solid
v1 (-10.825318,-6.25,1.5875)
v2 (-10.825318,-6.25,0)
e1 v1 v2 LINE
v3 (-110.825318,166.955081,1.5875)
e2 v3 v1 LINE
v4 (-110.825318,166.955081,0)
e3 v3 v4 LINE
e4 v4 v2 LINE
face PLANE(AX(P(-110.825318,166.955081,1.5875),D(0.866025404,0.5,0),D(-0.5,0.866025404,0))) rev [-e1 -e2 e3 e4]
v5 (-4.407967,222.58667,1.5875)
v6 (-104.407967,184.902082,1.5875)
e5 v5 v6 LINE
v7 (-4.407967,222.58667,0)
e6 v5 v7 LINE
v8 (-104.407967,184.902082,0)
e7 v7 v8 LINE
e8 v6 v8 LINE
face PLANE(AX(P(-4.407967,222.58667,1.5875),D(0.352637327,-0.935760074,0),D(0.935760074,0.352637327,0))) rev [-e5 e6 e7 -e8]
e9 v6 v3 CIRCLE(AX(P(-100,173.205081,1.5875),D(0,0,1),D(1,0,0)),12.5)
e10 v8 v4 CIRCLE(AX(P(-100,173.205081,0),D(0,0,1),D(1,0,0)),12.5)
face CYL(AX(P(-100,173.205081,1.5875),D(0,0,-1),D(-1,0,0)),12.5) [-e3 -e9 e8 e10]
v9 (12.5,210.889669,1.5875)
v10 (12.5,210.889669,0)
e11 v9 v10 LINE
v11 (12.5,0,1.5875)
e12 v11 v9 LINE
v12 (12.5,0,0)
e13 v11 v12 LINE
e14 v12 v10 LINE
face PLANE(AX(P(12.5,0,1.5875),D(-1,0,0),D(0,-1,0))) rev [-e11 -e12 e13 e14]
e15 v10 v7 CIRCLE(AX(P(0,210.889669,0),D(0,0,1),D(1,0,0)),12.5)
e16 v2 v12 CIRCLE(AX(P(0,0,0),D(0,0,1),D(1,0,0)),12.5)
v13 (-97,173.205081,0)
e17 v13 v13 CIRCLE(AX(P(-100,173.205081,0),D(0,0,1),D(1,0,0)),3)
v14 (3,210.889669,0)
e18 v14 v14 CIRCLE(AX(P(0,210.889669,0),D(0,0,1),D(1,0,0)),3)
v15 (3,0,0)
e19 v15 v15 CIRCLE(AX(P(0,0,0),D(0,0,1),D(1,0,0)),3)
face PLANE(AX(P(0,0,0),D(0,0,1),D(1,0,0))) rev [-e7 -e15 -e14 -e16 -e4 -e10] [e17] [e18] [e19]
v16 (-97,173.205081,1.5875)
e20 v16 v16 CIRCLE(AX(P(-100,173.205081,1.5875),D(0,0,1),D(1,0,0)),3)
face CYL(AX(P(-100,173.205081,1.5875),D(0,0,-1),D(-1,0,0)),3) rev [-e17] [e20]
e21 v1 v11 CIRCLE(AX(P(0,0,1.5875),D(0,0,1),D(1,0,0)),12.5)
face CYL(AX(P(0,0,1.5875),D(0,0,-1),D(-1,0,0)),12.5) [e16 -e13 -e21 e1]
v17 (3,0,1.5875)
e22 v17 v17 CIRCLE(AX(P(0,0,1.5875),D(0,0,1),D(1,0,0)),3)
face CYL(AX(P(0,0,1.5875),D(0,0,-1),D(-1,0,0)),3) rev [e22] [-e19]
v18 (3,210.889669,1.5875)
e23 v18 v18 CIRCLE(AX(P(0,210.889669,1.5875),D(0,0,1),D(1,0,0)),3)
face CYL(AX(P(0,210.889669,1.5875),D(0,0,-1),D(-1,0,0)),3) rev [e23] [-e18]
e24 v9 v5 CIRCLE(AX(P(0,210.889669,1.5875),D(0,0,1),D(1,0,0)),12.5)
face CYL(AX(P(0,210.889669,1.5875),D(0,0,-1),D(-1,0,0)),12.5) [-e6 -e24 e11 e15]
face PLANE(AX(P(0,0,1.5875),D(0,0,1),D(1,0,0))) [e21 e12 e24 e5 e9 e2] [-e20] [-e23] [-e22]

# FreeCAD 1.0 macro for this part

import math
import FreeCAD as App
import Part
import Sketcher

V = App.Vector
Q = App.Units.Quantity

doc = App.newDocument("Part")
body = doc.addObject("PartDesign::Body", "Body")

# Sketch on XY plane
sketch1 = doc.addObject("Sketcher::SketchObject", "Sketch")
body.addObject(sketch1)
sketch1.AttachmentSupport = (doc.XY_Plane, [""])
sketch1.MapMode = "FlatFace"
sketch1.addGeometry([
    Part.LineSegment(V(-110.8, 167, 0), V(-10.8, -6.2, 0)),  # 0
    Part.ArcOfCircle(Part.Circle(V(0, 0, 0), V(0, 0, 1), 12.5), math.radians(-150), math.radians(0)),  # 1
    Part.LineSegment(V(12.5, 0, 0), V(12.5, 210.9, 0)),  # 2
    Part.ArcOfCircle(Part.Circle(V(0, 210.9, 0), V(0, 0, 1), 12.5), math.radians(0), math.radians(111)),  # 3
    Part.LineSegment(V(-4.4, 222.6, 0), V(-104.4, 184.9, 0)),  # 4
    Part.ArcOfCircle(Part.Circle(V(-100, 173.2, 0), V(0, 0, 1), 12.5), math.radians(111), math.radians(210)),  # 5
    Part.Circle(V(0, 0, 0), V(0, 0, 1), 3),  # 6
    Part.Circle(V(-100, 173.2, 0), V(0, 0, 1), 3),  # 7
    Part.Circle(V(0, 210.9, 0), V(0, 0, 1), 3),  # 8
], False)
sketch1.addConstraint([
    Sketcher.Constraint("Tangent", 0, 2, 1, 1),
    Sketcher.Constraint("Tangent", 1, 2, 2, 1),
    Sketcher.Constraint("Tangent", 2, 2, 3, 1),
    Sketcher.Constraint("Tangent", 3, 2, 4, 1),
    Sketcher.Constraint("Tangent", 4, 2, 5, 1),
    Sketcher.Constraint("Tangent", 5, 2, 0, 1),
    Sketcher.Constraint("Vertical", 2),
    Sketcher.Constraint("Coincident", 1, 3, -1, 1),
    Sketcher.Constraint("Coincident", 6, 3, -1, 1),
    Sketcher.Constraint("Coincident", 7, 3, 5, 3),
    Sketcher.Constraint("Coincident", 8, 3, 3, 3),
    Sketcher.Constraint("Equal", 1, 3),
    Sketcher.Constraint("Equal", 3, 5),
    Sketcher.Constraint("Equal", 6, 7),
    Sketcher.Constraint("Equal", 7, 8),
    Sketcher.Constraint("Diameter", 6, 6.0),
    Sketcher.Constraint("Radius", 1, 12.5),
    Sketcher.Constraint("Angle", 0, Q("-60 deg")),
    Sketcher.Constraint("Distance", 0, 200.0),
    Sketcher.Constraint("Distance", 4, 106.865),
])
pad1 = doc.addObject("PartDesign::Pad", "Pad")
body.addObject(pad1)
pad1.Profile = sketch1
pad1.Length = 1.5875

doc.recompute()
